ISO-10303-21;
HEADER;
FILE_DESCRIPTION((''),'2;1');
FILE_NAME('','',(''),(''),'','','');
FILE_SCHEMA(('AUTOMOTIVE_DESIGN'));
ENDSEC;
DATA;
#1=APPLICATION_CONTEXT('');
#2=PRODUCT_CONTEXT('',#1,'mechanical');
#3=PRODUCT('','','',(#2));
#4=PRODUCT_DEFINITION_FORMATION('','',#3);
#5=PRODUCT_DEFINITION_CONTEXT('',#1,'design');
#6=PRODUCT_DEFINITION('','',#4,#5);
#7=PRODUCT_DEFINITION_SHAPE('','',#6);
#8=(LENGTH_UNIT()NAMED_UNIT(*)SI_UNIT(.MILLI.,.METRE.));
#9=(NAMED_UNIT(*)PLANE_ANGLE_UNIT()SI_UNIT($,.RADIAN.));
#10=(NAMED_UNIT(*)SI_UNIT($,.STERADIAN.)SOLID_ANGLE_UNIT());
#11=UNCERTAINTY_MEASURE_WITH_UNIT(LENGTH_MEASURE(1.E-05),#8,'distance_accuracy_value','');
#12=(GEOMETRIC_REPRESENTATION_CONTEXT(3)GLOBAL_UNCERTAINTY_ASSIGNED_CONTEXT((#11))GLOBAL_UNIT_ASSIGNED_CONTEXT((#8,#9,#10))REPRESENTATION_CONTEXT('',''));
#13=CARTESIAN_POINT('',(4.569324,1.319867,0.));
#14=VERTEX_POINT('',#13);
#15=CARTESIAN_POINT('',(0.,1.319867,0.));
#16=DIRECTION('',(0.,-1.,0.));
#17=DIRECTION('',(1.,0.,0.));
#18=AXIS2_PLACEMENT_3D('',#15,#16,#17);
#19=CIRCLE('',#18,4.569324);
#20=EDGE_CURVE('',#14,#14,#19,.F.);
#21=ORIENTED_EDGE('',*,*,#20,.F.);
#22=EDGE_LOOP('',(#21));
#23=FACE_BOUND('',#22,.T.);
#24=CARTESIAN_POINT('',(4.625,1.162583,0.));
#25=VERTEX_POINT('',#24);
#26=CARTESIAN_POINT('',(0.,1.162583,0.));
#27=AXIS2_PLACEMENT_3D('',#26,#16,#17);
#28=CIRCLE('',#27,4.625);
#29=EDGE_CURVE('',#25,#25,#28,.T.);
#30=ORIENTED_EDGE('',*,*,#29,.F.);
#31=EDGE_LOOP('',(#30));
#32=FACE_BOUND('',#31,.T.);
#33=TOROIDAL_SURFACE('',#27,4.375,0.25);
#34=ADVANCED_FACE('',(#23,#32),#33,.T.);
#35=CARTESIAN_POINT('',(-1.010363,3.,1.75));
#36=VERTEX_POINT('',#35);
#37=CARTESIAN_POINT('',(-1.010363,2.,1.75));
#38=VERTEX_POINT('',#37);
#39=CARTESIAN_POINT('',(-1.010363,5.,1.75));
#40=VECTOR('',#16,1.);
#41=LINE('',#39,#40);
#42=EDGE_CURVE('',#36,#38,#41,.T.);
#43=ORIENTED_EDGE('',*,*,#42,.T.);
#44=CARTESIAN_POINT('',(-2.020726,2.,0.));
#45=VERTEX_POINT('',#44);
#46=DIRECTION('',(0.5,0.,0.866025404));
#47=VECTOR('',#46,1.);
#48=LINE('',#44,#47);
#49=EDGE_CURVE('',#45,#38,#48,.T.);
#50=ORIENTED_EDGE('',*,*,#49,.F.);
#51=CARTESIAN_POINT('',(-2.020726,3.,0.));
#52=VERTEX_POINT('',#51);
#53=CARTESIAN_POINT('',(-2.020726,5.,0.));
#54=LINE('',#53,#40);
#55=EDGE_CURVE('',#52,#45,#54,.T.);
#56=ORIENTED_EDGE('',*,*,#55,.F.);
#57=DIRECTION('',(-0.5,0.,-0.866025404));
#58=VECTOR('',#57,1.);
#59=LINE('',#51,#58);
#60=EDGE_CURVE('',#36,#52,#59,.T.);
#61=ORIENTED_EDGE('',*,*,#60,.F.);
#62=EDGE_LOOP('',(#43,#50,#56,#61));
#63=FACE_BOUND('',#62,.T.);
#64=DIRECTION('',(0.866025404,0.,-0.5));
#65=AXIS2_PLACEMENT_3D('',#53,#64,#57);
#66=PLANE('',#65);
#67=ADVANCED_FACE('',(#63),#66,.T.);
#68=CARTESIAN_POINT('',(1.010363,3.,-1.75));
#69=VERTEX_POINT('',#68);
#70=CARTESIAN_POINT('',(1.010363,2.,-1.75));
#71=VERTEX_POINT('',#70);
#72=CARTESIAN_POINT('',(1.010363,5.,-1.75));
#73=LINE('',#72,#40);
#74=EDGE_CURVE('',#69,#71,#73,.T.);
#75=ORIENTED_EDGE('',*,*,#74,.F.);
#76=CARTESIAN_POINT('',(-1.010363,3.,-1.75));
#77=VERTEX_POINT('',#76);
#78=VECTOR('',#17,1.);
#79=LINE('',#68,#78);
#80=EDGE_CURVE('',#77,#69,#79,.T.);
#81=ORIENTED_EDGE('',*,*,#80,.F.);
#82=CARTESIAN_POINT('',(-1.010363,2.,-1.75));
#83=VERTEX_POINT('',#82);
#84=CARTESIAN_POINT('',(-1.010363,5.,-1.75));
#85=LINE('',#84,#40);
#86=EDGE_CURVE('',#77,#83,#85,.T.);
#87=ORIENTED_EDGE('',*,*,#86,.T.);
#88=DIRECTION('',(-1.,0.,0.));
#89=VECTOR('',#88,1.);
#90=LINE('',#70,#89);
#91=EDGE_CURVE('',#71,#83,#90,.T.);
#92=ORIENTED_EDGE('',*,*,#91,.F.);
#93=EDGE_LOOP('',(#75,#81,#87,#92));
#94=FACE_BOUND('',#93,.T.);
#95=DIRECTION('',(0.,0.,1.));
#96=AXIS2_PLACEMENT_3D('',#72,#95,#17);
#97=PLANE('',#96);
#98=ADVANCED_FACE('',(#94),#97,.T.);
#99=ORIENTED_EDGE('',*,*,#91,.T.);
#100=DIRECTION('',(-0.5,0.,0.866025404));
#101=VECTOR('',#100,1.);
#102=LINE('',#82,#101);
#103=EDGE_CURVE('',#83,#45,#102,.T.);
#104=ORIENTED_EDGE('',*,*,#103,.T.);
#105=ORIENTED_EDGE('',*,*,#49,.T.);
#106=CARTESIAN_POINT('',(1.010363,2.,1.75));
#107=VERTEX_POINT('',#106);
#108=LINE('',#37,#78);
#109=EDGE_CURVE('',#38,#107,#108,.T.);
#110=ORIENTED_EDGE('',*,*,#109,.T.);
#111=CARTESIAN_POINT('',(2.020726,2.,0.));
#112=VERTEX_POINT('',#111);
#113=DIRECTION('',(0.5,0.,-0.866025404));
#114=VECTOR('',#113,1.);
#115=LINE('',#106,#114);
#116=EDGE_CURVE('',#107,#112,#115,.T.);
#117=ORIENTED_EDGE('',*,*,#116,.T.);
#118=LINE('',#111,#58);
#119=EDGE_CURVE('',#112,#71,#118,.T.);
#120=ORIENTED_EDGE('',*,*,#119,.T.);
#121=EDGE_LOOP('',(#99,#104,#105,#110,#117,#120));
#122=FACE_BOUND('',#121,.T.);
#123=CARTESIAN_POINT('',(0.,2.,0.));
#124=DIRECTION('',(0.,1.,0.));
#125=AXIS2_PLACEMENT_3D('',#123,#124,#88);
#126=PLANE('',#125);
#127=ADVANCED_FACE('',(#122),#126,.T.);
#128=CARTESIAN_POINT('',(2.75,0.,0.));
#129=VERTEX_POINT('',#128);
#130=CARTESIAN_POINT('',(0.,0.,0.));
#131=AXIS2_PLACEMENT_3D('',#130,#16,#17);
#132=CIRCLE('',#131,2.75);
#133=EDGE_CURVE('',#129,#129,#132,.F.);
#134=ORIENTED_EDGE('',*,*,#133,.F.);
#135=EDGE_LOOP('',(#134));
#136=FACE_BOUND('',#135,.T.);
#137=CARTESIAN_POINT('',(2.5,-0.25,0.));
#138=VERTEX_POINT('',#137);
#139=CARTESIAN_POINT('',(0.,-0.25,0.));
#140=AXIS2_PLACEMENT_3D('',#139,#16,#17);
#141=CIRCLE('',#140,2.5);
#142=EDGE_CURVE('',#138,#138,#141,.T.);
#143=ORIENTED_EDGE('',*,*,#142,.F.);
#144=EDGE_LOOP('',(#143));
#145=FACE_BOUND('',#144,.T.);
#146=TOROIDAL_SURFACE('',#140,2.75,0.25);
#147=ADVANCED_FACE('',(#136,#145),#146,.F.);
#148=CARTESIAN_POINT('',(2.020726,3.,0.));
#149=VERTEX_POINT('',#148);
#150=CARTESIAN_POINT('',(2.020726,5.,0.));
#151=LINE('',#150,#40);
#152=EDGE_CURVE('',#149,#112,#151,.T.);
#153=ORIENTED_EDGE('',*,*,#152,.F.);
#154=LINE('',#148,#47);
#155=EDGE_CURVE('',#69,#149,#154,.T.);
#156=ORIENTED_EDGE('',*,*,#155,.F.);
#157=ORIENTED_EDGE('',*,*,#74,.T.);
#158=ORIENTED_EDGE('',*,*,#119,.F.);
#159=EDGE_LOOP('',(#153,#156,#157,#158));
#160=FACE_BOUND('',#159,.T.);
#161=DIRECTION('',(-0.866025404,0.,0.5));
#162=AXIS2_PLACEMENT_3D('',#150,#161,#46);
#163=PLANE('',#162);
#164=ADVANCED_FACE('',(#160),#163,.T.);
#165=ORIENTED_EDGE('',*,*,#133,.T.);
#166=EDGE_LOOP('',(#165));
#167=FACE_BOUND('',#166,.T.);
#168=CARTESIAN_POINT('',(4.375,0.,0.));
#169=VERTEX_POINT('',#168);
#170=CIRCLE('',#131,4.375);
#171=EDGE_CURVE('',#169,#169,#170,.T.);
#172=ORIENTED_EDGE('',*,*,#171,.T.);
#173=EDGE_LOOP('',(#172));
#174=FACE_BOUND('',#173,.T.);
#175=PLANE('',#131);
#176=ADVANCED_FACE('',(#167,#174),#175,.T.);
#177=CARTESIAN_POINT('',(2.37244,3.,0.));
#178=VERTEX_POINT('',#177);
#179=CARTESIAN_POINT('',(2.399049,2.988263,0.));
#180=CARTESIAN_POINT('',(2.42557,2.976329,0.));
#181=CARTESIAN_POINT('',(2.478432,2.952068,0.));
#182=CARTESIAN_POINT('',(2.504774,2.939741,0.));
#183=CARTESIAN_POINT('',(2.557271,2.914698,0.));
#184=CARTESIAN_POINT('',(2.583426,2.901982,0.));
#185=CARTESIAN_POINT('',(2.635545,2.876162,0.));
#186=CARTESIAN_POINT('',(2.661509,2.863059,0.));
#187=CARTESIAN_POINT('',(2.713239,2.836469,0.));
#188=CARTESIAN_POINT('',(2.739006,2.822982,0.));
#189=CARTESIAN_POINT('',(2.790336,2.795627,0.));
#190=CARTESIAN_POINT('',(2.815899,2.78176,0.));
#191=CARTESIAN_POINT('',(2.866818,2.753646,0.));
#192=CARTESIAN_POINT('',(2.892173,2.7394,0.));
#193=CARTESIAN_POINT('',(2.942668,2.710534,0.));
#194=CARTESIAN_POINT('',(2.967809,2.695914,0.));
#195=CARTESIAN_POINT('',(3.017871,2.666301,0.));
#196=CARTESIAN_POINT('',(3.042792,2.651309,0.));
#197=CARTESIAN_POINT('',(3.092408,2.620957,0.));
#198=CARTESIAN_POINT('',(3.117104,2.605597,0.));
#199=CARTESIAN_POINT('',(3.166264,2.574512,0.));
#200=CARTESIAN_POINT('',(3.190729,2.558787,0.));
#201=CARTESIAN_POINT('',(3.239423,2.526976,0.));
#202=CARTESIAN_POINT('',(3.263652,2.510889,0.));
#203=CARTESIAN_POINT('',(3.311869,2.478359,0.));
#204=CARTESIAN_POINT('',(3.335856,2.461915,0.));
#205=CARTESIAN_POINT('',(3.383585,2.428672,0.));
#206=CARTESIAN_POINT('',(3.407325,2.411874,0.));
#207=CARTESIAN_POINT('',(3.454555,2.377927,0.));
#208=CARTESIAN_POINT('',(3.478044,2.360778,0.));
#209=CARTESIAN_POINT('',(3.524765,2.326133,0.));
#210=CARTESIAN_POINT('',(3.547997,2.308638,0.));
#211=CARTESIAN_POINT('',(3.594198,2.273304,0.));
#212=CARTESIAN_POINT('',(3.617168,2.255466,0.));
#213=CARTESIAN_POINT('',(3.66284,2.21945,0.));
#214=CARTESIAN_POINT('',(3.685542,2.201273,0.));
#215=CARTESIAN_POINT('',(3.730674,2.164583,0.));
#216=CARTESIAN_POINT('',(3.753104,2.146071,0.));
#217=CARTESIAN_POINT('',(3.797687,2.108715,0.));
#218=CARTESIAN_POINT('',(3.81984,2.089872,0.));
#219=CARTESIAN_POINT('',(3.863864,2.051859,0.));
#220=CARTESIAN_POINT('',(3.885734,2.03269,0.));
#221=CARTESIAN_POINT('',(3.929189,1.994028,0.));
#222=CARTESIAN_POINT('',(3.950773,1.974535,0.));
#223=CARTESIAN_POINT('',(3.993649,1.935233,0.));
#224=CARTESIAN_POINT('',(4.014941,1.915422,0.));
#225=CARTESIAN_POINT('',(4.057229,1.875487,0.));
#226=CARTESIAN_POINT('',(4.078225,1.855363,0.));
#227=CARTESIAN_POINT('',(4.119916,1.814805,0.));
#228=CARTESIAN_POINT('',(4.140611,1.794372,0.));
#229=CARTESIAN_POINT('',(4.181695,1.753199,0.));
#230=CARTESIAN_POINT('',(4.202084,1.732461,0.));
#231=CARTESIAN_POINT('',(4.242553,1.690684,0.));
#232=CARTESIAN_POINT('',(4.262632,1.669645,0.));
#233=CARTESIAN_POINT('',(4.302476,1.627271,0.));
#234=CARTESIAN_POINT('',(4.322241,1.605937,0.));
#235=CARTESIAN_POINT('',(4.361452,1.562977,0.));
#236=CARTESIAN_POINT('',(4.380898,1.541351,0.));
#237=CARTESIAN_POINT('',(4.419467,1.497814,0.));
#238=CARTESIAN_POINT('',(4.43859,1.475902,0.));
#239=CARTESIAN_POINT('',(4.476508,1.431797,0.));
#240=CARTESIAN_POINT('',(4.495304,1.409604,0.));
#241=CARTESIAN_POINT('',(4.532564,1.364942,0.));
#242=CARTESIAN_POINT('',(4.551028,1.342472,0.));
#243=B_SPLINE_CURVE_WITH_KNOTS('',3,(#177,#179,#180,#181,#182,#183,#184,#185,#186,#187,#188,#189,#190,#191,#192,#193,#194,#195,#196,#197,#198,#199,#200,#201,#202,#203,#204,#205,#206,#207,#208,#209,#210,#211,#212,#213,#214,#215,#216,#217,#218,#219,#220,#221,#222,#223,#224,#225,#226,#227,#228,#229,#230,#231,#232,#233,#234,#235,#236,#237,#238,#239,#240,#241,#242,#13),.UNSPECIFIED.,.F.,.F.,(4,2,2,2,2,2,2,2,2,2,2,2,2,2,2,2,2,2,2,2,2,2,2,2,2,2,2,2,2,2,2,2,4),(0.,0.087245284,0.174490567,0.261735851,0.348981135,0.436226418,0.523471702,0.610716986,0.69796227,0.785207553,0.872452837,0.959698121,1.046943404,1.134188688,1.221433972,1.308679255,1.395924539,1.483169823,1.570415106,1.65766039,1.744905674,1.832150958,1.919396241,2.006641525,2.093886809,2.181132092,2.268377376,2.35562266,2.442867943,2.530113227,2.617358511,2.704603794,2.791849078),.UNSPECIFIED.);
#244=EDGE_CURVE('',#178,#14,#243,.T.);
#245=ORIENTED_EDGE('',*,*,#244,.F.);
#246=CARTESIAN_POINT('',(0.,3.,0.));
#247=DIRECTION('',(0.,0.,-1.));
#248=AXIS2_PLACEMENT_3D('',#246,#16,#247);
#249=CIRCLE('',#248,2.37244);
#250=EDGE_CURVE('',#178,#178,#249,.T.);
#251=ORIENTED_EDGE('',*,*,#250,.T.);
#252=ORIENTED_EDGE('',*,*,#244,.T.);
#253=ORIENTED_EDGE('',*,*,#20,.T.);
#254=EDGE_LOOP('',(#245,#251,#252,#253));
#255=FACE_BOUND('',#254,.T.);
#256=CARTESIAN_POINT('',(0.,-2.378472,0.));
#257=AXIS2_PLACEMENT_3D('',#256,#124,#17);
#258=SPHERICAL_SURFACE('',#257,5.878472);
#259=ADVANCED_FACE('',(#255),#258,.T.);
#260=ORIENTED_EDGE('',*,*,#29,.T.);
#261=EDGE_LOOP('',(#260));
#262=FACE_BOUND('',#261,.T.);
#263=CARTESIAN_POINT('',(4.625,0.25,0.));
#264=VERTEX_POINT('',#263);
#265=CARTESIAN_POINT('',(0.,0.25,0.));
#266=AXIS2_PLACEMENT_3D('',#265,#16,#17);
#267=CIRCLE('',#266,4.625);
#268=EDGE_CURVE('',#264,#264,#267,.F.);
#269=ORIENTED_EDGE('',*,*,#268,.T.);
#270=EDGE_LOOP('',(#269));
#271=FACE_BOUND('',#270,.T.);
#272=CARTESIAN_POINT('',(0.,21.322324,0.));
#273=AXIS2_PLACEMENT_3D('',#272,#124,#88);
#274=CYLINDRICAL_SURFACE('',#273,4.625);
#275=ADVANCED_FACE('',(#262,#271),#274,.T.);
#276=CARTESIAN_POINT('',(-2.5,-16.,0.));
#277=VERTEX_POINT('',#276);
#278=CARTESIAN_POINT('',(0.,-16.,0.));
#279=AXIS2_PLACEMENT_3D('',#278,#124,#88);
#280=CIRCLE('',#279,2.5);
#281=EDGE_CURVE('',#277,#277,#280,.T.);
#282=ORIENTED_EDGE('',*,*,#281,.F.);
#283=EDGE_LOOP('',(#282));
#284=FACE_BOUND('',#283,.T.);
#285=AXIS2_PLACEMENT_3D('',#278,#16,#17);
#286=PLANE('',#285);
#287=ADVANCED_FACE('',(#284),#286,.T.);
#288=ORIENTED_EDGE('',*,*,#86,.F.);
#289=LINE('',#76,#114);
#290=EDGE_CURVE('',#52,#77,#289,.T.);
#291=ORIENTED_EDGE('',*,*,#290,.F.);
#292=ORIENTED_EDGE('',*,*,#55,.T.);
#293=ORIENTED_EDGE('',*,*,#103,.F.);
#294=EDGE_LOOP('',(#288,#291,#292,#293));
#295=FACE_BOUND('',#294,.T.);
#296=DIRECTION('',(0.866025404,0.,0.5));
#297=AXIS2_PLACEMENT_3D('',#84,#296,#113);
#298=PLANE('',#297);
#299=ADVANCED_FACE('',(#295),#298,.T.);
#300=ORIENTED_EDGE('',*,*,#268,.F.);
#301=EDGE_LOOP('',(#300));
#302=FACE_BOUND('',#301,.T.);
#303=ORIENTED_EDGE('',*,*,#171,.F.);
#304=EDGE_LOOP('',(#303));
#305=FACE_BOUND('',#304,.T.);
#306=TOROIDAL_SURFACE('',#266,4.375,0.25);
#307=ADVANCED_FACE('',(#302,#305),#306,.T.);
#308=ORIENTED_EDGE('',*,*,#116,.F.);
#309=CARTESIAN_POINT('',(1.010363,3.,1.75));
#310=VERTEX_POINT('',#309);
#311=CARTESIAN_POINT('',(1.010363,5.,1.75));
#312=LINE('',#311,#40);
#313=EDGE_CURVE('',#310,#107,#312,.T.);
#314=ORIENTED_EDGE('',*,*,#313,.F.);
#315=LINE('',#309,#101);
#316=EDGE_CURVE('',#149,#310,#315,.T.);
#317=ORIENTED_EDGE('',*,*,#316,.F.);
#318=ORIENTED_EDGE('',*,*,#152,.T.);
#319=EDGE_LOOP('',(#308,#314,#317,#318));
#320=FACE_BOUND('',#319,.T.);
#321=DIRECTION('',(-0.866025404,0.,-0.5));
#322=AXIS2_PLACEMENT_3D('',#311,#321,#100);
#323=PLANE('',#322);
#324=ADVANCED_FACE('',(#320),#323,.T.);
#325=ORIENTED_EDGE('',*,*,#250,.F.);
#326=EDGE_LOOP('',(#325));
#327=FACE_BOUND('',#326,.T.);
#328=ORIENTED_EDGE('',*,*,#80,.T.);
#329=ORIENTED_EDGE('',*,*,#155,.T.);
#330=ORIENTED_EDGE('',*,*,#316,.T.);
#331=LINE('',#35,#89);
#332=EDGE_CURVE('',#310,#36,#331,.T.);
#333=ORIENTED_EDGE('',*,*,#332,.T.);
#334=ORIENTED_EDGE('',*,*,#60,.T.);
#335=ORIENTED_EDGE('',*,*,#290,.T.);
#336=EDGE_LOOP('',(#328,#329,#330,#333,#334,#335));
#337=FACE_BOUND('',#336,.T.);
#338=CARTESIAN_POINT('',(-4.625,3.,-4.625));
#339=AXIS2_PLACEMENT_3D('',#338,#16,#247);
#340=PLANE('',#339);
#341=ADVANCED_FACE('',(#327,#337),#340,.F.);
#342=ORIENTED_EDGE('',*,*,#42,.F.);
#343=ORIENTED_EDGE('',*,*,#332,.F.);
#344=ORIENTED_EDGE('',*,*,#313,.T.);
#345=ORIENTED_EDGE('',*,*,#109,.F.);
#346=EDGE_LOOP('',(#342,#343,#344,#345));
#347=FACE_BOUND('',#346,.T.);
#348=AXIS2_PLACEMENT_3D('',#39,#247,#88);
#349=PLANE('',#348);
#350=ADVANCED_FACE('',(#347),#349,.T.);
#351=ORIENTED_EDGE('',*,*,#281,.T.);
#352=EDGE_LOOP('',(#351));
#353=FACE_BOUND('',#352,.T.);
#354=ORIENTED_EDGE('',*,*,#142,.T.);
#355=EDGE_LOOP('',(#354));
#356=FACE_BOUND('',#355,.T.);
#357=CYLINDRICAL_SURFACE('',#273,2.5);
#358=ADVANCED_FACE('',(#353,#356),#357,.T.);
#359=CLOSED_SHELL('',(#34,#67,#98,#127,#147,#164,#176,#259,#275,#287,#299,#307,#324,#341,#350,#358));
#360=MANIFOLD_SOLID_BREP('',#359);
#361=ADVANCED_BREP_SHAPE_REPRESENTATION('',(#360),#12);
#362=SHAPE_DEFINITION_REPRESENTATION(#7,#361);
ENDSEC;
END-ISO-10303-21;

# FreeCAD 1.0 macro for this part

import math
import FreeCAD as App
import Part
import Sketcher
from FreeCAD import Vector
Q = App.Units.Quantity


def edges_at(feature, points):
    """Names of the edges that pass closest to the given points."""
    edges = feature.Shape.Edges
    near = lambda p: min(range(len(edges)), key=lambda i: edges[i].distToShape(Part.Vertex(*p))[0])
    return sorted({f"Edge{near(p) + 1}" for p in points})

doc = App.newDocument("Part")
body = doc.addObject("PartDesign::Body", "Body")

sketch1 = doc.addObject("Sketcher::SketchObject", "Sketch")
body.addObject(sketch1)
sketch1.AttachmentSupport = (doc.XY_Plane, [""])
sketch1.MapMode = "FlatFace"
sketch1.addGeometry([
    Part.LineSegment(Vector(2.5, -16, 0), Vector(2.5, 0, 0)),
    Part.LineSegment(Vector(2.5, 0, 0), Vector(4.625, 0, 0)),
    Part.LineSegment(Vector(4.625, 0, 0), Vector(4.625, 1.25, 0)),
    Part.ArcOfCircle(Part.Circle(Vector(0, -2.378472, 0), Vector(0, 0, 1), 5.878472), math.radians(38.115409), math.radians(90)),
    Part.LineSegment(Vector(0, 3.5, 0), Vector(0, -16, 0)),
    Part.LineSegment(Vector(0, -16, 0), Vector(2.5, -16, 0)),
], False)
sketch1.addConstraint([
    Sketcher.Constraint("Coincident", 0, 2, 1, 1),
    Sketcher.Constraint("Coincident", 1, 2, 2, 1),
    Sketcher.Constraint("Coincident", 2, 2, 3, 1),
    Sketcher.Constraint("Coincident", 3, 2, 4, 1),
    Sketcher.Constraint("Coincident", 4, 2, 5, 1),
    Sketcher.Constraint("Coincident", 5, 2, 0, 1),
    Sketcher.Constraint("Vertical", 0),
    Sketcher.Constraint("Horizontal", 1),
    Sketcher.Constraint("Vertical", 2),
    Sketcher.Constraint("Vertical", 4),
    Sketcher.Constraint("Horizontal", 5),
    Sketcher.Constraint("PointOnObject", 3, 3, -2),
    Sketcher.Constraint("PointOnObject", 0, 2, -1),
    Sketcher.Constraint("PointOnObject", 3, 2, -2),
    Sketcher.Constraint("DistanceY", 0, 1, 0, 2, Q("16 mm")),
    Sketcher.Constraint("DistanceX", 5, 1, 5, 2, Q("2.5 mm")),
    Sketcher.Constraint("DistanceY", 4, 2, 4, 1, Q("19.5 mm")),
    Sketcher.Constraint("DistanceY", 2, 1, 2, 2, Q("1.25 mm")),
    Sketcher.Constraint("DistanceX", 1, 1, 1, 2, Q("2.125 mm")),
])
revolution = doc.addObject("PartDesign::Revolution", "Revolution")
body.addObject(revolution)
revolution.Profile = sketch1
revolution.ReferenceAxis = (sketch1, ["V_Axis"])
revolution.Angle = 360

sketch2 = doc.addObject("Sketcher::SketchObject", "Sketch001")
body.addObject(sketch2)
sketch2.AttachmentSupport = (doc.XZ_Plane, [""])
sketch2.MapMode = "FlatFace"
sketch2.AttachmentOffset = App.Placement(Vector(0, 0, -2), App.Rotation())
sketch2.addGeometry([
    Part.LineSegment(Vector(2.020726, 0, 0), Vector(1.010363, -1.75, 0)),
    Part.LineSegment(Vector(1.010363, -1.75, 0), Vector(-1.010363, -1.75, 0)),
    Part.LineSegment(Vector(-1.010363, -1.75, 0), Vector(-2.020726, 0, 0)),
    Part.LineSegment(Vector(-2.020726, 0, 0), Vector(-1.010363, 1.75, 0)),
    Part.LineSegment(Vector(-1.010363, 1.75, 0), Vector(1.010363, 1.75, 0)),
    Part.LineSegment(Vector(1.010363, 1.75, 0), Vector(2.020726, 0, 0)),
], False)
sketch2.addConstraint([
    Sketcher.Constraint("Coincident", 0, 2, 1, 1),
    Sketcher.Constraint("Coincident", 1, 2, 2, 1),
    Sketcher.Constraint("Coincident", 2, 2, 3, 1),
    Sketcher.Constraint("Coincident", 3, 2, 4, 1),
    Sketcher.Constraint("Coincident", 4, 2, 5, 1),
    Sketcher.Constraint("Coincident", 5, 2, 0, 1),
    Sketcher.Constraint("Horizontal", 1),
    Sketcher.Constraint("Horizontal", 4),
    Sketcher.Constraint("Symmetric", 0, 2, 3, 2, -1, 1),
    Sketcher.Constraint("Symmetric", 2, 2, 5, 2, -1, 1),
    Sketcher.Constraint("PointOnObject", 2, 2, -1),
    Sketcher.Constraint("Parallel", 2, 5),
    Sketcher.Constraint("Vertical", 1, 2, 3, 2),
    Sketcher.Constraint("Angle", 0, Q("-120 deg")),
    Sketcher.Constraint("DistanceY", 1, 2, 3, 2, Q("3.5 mm")),
    Sketcher.Constraint("DistanceX", 1, 2, 1, 1, Q("2.020726 mm")),
])
pocket1 = doc.addObject("PartDesign::Pocket", "Pocket")
body.addObject(pocket1)
pocket1.Profile = sketch2
pocket1.Length = 3
doc.recompute()

fillet = doc.addObject("PartDesign::Fillet", "Fillet")
body.addObject(fillet)
fillet.Base = (pocket1, edges_at(pocket1, [(4.625, 1.25, 0), (4.625, 0, 0), (2.5, 0, 0)]))
fillet.Radius = 0.25

sketch3 = doc.addObject("Sketcher::SketchObject", "Sketch002")
body.addObject(sketch3)
sketch3.AttachmentSupport = (doc.XY_Plane, [""])
sketch3.MapMode = "FlatFace"
sketch3.addGeometry([
    Part.LineSegment(Vector(-4.625, 5, 0), Vector(-4.625, 3, 0)),
    Part.LineSegment(Vector(-4.625, 3, 0), Vector(4.625, 3, 0)),
    Part.LineSegment(Vector(4.625, 3, 0), Vector(4.625, 5, 0)),
    Part.LineSegment(Vector(4.625, 5, 0), Vector(-4.625, 5, 0)),
], False)
sketch3.addConstraint([
    Sketcher.Constraint("Coincident", 0, 2, 1, 1),
    Sketcher.Constraint("Coincident", 1, 2, 2, 1),
    Sketcher.Constraint("Coincident", 2, 2, 3, 1),
    Sketcher.Constraint("Coincident", 3, 2, 0, 1),
    Sketcher.Constraint("Vertical", 0),
    Sketcher.Constraint("Horizontal", 1),
    Sketcher.Constraint("Vertical", 2),
    Sketcher.Constraint("Horizontal", 3),
    Sketcher.Constraint("DistanceY", 0, 2, 0, 1, Q("2 mm")),
    Sketcher.Constraint("DistanceY", -1, 1, 0, 2, Q("3 mm")),
    Sketcher.Constraint("DistanceX", 1, 1, 1, 2, Q("9.25 mm")),
    Sketcher.Constraint("DistanceX", 0, 2, -1, 1, Q("4.625 mm")),
])
pocket2 = doc.addObject("PartDesign::Pocket", "Pocket001")
body.addObject(pocket2)
pocket2.Profile = sketch3
pocket2.Type = "ThroughAll"
pocket2.Midplane = True

doc.recompute()
